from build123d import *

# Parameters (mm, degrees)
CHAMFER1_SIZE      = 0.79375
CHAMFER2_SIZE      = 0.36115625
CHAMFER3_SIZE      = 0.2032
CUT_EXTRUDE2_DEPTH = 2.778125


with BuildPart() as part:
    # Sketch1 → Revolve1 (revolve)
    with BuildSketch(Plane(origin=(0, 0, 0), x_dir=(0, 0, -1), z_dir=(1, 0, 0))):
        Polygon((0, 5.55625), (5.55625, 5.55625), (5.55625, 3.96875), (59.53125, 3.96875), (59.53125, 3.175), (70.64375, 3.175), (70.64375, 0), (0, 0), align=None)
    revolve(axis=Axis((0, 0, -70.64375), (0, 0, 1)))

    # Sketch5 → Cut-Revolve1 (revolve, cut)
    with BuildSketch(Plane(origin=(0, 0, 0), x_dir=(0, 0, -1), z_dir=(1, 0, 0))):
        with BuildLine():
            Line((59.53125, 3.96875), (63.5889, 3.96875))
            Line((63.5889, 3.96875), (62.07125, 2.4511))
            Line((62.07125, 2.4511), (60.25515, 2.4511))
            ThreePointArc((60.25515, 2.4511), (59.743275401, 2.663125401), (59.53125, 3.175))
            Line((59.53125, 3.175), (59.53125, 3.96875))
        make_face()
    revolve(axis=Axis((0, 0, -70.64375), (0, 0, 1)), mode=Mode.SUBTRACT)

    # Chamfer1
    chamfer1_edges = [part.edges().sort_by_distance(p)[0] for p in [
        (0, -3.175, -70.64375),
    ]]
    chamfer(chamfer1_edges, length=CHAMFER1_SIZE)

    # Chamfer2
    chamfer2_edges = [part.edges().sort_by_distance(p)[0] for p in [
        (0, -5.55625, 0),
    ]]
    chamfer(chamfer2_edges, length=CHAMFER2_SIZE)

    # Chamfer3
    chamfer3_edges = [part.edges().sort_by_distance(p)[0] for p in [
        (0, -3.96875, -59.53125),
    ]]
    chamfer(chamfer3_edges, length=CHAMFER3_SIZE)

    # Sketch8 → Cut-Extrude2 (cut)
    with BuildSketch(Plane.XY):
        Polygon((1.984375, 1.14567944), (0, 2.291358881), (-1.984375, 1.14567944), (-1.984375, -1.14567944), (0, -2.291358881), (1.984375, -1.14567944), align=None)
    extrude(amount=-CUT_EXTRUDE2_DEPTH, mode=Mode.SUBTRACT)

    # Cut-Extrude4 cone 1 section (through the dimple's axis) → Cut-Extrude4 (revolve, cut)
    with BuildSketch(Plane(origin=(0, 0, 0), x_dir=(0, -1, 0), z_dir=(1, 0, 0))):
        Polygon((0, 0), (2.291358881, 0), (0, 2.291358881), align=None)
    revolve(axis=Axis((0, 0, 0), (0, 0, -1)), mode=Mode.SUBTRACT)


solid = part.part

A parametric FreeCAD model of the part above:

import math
import FreeCAD as App
import Part
import Sketcher
from FreeCAD import Vector
Q = App.Units.Quantity


def edges_at(feature, points):
    """Names of the edges that pass closest to the given points."""
    edges = feature.Shape.Edges
    near = lambda p: min(range(len(edges)), key=lambda i: edges[i].distToShape(Part.Vertex(*p))[0])
    return sorted({f"Edge{near(p) + 1}" for p in points})

doc = App.newDocument("Part")
body = doc.addObject("PartDesign::Body", "Body")

# Sketch on YZ plane
sketch1 = body.newObject("Sketcher::SketchObject", "Sketch")
sketch1.AttachmentSupport = (doc.getObject("YZ_Plane"), [""])
sketch1.MapMode = "FlatFace"
sketch1.addGeometry(Part.LineSegment(Vector(5.6, -5.6, 0), Vector(5.6, 0, 0)), False)
sketch1.addGeometry(Part.LineSegment(Vector(5.6, 0, 0), Vector(0, 0, 0)), False)
sketch1.addGeometry(Part.LineSegment(Vector(0, 0, 0), Vector(0, -70.6, 0)), False)
sketch1.addGeometry(Part.LineSegment(Vector(0, -70.6, 0), Vector(3.2, -70.6, 0)), False)
sketch1.addGeometry(Part.LineSegment(Vector(3.2, -70.6, 0), Vector(3.2, -59.5, 0)), False)
sketch1.addGeometry(Part.LineSegment(Vector(3.2, -59.5, 0), Vector(4, -59.5, 0)), False)
sketch1.addGeometry(Part.LineSegment(Vector(4, -59.5, 0), Vector(4, -5.6, 0)), False)
sketch1.addGeometry(Part.LineSegment(Vector(4, -5.6, 0), Vector(5.6, -5.6, 0)), False)
sketch1.addConstraint(Sketcher.Constraint("Coincident", 0, 2, 1, 1))
sketch1.addConstraint(Sketcher.Constraint("Coincident", 1, 2, 2, 1))
sketch1.addConstraint(Sketcher.Constraint("Coincident", 2, 2, 3, 1))
sketch1.addConstraint(Sketcher.Constraint("Coincident", 3, 2, 4, 1))
sketch1.addConstraint(Sketcher.Constraint("Coincident", 4, 2, 5, 1))
sketch1.addConstraint(Sketcher.Constraint("Coincident", 5, 2, 6, 1))
sketch1.addConstraint(Sketcher.Constraint("Coincident", 6, 2, 7, 1))
sketch1.addConstraint(Sketcher.Constraint("Coincident", 7, 2, 0, 1))
sketch1.addConstraint(Sketcher.Constraint("Vertical", 0))
sketch1.addConstraint(Sketcher.Constraint("Horizontal", 1))
sketch1.addConstraint(Sketcher.Constraint("Vertical", 2))
sketch1.addConstraint(Sketcher.Constraint("Horizontal", 3))
sketch1.addConstraint(Sketcher.Constraint("Vertical", 4))
sketch1.addConstraint(Sketcher.Constraint("Horizontal", 5))
sketch1.addConstraint(Sketcher.Constraint("Vertical", 6))
sketch1.addConstraint(Sketcher.Constraint("Horizontal", 7))
sketch1.addConstraint(Sketcher.Constraint("Coincident", 1, 2, -1, 1))
sketch1.addConstraint(Sketcher.Constraint("Equal", 1, 0))
sketch1.addConstraint(Sketcher.Constraint("DistanceX", 1, 2, 1, 1, Q("0.21875 in")))
sketch1.addConstraint(Sketcher.Constraint("DistanceX", 3, 1, 3, 2, Q("0.125 in")))
sketch1.addConstraint(Sketcher.Constraint("DistanceX", 5, 1, 5, 2, Q("0.03125 in")))
sketch1.addConstraint(Sketcher.Constraint("DistanceY", 2, 2, 2, 1, Q("2.78125 in")))
sketch1.addConstraint(Sketcher.Constraint("DistanceY", 4, 1, 4, 2, Q("0.4375 in")))
revolution = body.newObject("PartDesign::Revolution", "Revolution")
revolution.Profile = sketch1
revolution.ReferenceAxis = (sketch1, ["V_Axis"])
revolution.Angle = 360

# Sketch on YZ plane
sketch2 = body.newObject("Sketcher::SketchObject", "Sketch001")
sketch2.AttachmentSupport = (doc.getObject("YZ_Plane"), [""])
sketch2.MapMode = "FlatFace"
sketch2.addGeometry(Part.LineSegment(Vector(4, -63.6, 0), Vector(4, -59.5, 0)), False)
sketch2.addGeometry(Part.LineSegment(Vector(4, -59.5, 0), Vector(3.2, -59.5, 0)), False)
sketch2.addGeometry(Part.ArcOfCircle(Part.Circle(Vector(3.2, -60.3, 0), Vector(0, 0, 1), 0.7), math.radians(90), math.radians(180)), False)
sketch2.addGeometry(Part.LineSegment(Vector(2.5, -60.3, 0), Vector(2.5, -62.1, 0)), False)
sketch2.addGeometry(Part.LineSegment(Vector(2.5, -62.1, 0), Vector(4, -63.6, 0)), False)
sketch2.addConstraint(Sketcher.Constraint("Coincident", 0, 2, 1, 1))
sketch2.addConstraint(Sketcher.Constraint("Tangent", 1, 2, 2, 1))
sketch2.addConstraint(Sketcher.Constraint("Tangent", 2, 2, 3, 1))
sketch2.addConstraint(Sketcher.Constraint("Coincident", 3, 2, 4, 1))
sketch2.addConstraint(Sketcher.Constraint("Coincident", 4, 2, 0, 1))
sketch2.addConstraint(Sketcher.Constraint("Vertical", 0))
sketch2.addConstraint(Sketcher.Constraint("Horizontal", 1))
sketch2.addConstraint(Sketcher.Constraint("Vertical", 3))
sketch2.addConstraint(Sketcher.Constraint("Angle", 4, Q("-45 deg")))
sketch2.addConstraint(Sketcher.Constraint("Radius", 2, Q("0.0285 in")))
sketch2.addConstraint(Sketcher.Constraint("DistanceY", 3, 2, 1, 2, Q("0.1 in")))
sketch2.addConstraint(Sketcher.Constraint("DistanceX", 1, 2, 1, 1, Q("0.03125 in")))
sketch2.addConstraint(Sketcher.Constraint("DistanceX", -1, 1, 2, 3, Q("0.125 in")))
sketch2.addConstraint(Sketcher.Constraint("DistanceY", 0, 2, -1, 1, Q("2.34375 in")))
groove = body.newObject("PartDesign::Groove", "Groove")
groove.Profile = sketch2
groove.ReferenceAxis = (sketch2, ["V_Axis"])
groove.Angle = 360
doc.recompute()

chamfer = body.newObject("PartDesign::Chamfer", "Chamfer")
chamfer.Base = (groove, edges_at(groove, [(0, -3.175, -70.644)]))
chamfer.Size = Q("0.03125 in")
doc.recompute()

chamfer2 = body.newObject("PartDesign::Chamfer", "Chamfer001")
chamfer2.Base = (chamfer, edges_at(chamfer, [(0, -5.556, 0)]))
chamfer2.Size = 0.361156
doc.recompute()

chamfer3 = body.newObject("PartDesign::Chamfer", "Chamfer002")
chamfer3.Base = (chamfer2, edges_at(chamfer2, [(0, -3.969, -59.531)]))
chamfer3.Size = Q("0.008 in")

# Sketch on XY plane
sketch3 = body.newObject("Sketcher::SketchObject", "Sketch002")
sketch3.AttachmentSupport = (doc.getObject("XY_Plane"), [""])
sketch3.MapMode = "FlatFace"
sketch3.addGeometry(Part.LineSegment(Vector(2, 1.1, 0), Vector(0, 2.3, 0)), False)
sketch3.addGeometry(Part.LineSegment(Vector(0, 2.3, 0), Vector(-2, 1.1, 0)), False)
sketch3.addGeometry(Part.LineSegment(Vector(-2, 1.1, 0), Vector(-2, -1.1, 0)), False)
sketch3.addGeometry(Part.LineSegment(Vector(-2, -1.1, 0), Vector(0, -2.3, 0)), False)
sketch3.addGeometry(Part.LineSegment(Vector(0, -2.3, 0), Vector(2, -1.1, 0)), False)
sketch3.addGeometry(Part.LineSegment(Vector(2, -1.1, 0), Vector(2, 1.1, 0)), False)
sketch3.addConstraint(Sketcher.Constraint("Coincident", 0, 2, 1, 1))
sketch3.addConstraint(Sketcher.Constraint("Coincident", 1, 2, 2, 1))
sketch3.addConstraint(Sketcher.Constraint("Coincident", 2, 2, 3, 1))
sketch3.addConstraint(Sketcher.Constraint("Coincident", 3, 2, 4, 1))
sketch3.addConstraint(Sketcher.Constraint("Coincident", 4, 2, 5, 1))
sketch3.addConstraint(Sketcher.Constraint("Coincident", 5, 2, 0, 1))
sketch3.addConstraint(Sketcher.Constraint("Vertical", 2))
sketch3.addConstraint(Sketcher.Constraint("Vertical", 5))
sketch3.addConstraint(Sketcher.Constraint("Symmetric", 0, 2, 3, 2, -1, 1))
sketch3.addConstraint(Sketcher.Constraint("Symmetric", 1, 2, 4, 2, -1, 1))
sketch3.addConstraint(Sketcher.Constraint("PointOnObject", 0, 2, -2))
sketch3.addConstraint(Sketcher.Constraint("Parallel", 0, 3))
sketch3.addConstraint(Sketcher.Constraint("Horizontal", 2, 2, 4, 2))
sketch3.addConstraint(Sketcher.Constraint("Angle", 0, Q("150 deg")))
sketch3.addConstraint(Sketcher.Constraint("DistanceX", 1, 2, -1, 1, Q("0.078125 in")))
sketch3.addConstraint(Sketcher.Constraint("DistanceY", 2, 2, 2, 1, Q("2.291359 mm")))
pocket1 = body.newObject("PartDesign::Pocket", "Pocket")
pocket1.Profile = sketch3
pocket1.Length = Q("0.109375 in")

# Sketch on YZ plane
sketch4 = body.newObject("Sketcher::SketchObject", "Sketch003")
sketch4.AttachmentSupport = (doc.getObject("YZ_Plane"), [""])
sketch4.MapMode = "FlatFace"
sketch4.addGeometry(Part.LineSegment(Vector(0, 0, 0), Vector(-2.3, 0, 0)), False)
sketch4.addGeometry(Part.LineSegment(Vector(-2.3, 0, 0), Vector(0, -2.3, 0)), False)
sketch4.addGeometry(Part.LineSegment(Vector(0, -2.3, 0), Vector(0, 0, 0)), False)
sketch4.addConstraint(Sketcher.Constraint("Coincident", 0, 2, 1, 1))
sketch4.addConstraint(Sketcher.Constraint("Coincident", 1, 2, 2, 1))
sketch4.addConstraint(Sketcher.Constraint("Coincident", 2, 2, 0, 1))
sketch4.addConstraint(Sketcher.Constraint("Horizontal", 0))
sketch4.addConstraint(Sketcher.Constraint("Vertical", 2))
sketch4.addConstraint(Sketcher.Constraint("Coincident", 2, 2, -1, 1))
sketch4.addConstraint(Sketcher.Constraint("Equal", 0, 2))
sketch4.addConstraint(Sketcher.Constraint("DistanceX", 0, 2, 0, 1, Q("2.291359 mm")))
groove2 = body.newObject("PartDesign::Groove", "Groove001")
groove2.Profile = sketch4
groove2.ReferenceAxis = (sketch4, ["V_Axis"])
groove2.Angle = 360

doc.recompute()
